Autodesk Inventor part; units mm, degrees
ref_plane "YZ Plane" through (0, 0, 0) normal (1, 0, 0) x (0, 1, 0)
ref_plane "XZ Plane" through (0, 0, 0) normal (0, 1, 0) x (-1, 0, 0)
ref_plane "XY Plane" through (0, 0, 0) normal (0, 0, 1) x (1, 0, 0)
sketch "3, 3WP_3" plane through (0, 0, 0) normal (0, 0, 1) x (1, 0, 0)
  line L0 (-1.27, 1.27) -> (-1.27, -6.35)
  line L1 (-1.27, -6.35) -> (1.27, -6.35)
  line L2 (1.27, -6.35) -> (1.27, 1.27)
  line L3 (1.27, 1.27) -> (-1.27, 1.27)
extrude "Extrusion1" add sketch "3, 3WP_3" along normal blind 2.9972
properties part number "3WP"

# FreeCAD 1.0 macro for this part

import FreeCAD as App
import Part
import Sketcher

V = App.Vector
Q = App.Units.Quantity

doc = App.newDocument("Part")
params = doc.addObject("Spreadsheet::Sheet", "Params")
for row, (alias, value) in enumerate([
    ("sketch1_width", "0.1 in"),
    ("sketch1_height", "0.3 in"),
    ("pad1_length", "0.118 in"),
], start=1):
    params.set(f"A{row}", alias)
    params.set(f"B{row}", "=" + value)
    params.setAlias(f"B{row}", alias)

body = doc.addObject("PartDesign::Body", "Body")

sketch1 = body.newObject("Sketcher::SketchObject", "Sketch")
sketch1.AttachmentSupport = (doc.getObject("XY_Plane"), [""])
sketch1.MapMode = "FlatFace"
sketch1.addGeometry([
    Part.LineSegment(V(1.3, 1.3, 0), V(-1.3, 1.3, 0)),
    Part.LineSegment(V(-1.3, 1.3, 0), V(-1.3, -6.3, 0)),
    Part.LineSegment(V(-1.3, -6.3, 0), V(1.3, -6.3, 0)),
    Part.LineSegment(V(1.3, -6.3, 0), V(1.3, 1.3, 0)),
], False)
sketch1.addConstraint([
    Sketcher.Constraint("Coincident", 0, 2, 1, 1),
    Sketcher.Constraint("Coincident", 1, 2, 2, 1),
    Sketcher.Constraint("Coincident", 2, 2, 3, 1),
    Sketcher.Constraint("Coincident", 3, 2, 0, 1),
    Sketcher.Constraint("Horizontal", 0),
    Sketcher.Constraint("Vertical", 1),
    Sketcher.Constraint("Horizontal", 2),
    Sketcher.Constraint("Vertical", 3),
    Sketcher.Constraint("DistanceX", 0, 2, 0, 1, Q("0.1 in")),
    Sketcher.Constraint("DistanceY", 1, 2, 1, 1, Q("0.3 in")),
    Sketcher.Constraint("DistanceX", 0, 2, -1, 1, Q("0.05 in")),
    Sketcher.Constraint("DistanceY", -1, 1, 0, 2, Q("0.05 in")),
])
sketch1.setExpression("Constraints[8]", "Params.sketch1_width")
sketch1.setExpression("Constraints[9]", "Params.sketch1_height")
pad1 = body.newObject("PartDesign::Pad", "Pad")
pad1.Profile = sketch1
pad1.setExpression("Length", "Params.pad1_length")

doc.recompute()
